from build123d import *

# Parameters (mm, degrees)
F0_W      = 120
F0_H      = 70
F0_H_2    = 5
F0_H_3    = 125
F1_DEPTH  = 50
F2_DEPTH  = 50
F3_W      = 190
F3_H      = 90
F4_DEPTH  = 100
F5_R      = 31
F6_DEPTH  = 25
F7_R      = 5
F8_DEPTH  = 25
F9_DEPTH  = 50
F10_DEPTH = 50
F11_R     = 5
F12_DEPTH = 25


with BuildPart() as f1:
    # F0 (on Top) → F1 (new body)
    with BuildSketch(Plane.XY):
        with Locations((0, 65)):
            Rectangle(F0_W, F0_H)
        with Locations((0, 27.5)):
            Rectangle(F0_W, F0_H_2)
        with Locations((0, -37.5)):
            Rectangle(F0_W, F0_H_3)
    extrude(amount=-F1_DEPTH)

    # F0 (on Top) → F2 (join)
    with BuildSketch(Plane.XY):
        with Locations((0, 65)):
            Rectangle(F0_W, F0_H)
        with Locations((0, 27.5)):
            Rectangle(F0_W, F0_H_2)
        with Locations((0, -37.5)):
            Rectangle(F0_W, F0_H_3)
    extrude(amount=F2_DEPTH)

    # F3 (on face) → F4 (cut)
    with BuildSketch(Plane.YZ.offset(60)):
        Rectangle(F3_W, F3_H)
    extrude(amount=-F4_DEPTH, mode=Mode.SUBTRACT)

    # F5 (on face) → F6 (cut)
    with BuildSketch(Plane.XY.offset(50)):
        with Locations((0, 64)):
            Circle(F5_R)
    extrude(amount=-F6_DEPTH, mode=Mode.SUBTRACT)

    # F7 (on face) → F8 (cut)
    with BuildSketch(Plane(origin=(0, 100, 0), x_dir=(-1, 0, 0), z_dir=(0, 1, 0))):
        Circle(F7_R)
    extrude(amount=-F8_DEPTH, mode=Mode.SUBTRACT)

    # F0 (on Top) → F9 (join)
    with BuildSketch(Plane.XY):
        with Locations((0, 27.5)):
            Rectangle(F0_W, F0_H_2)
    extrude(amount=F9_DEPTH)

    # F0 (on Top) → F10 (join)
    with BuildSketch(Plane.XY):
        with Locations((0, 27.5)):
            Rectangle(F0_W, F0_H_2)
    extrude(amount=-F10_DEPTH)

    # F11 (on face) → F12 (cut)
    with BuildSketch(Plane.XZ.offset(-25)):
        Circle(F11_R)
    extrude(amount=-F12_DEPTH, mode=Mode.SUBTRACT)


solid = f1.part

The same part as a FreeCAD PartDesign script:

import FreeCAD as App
import Part
import Sketcher


def add_polygon(sketch, points):
    """Adds a closed chain of lines whose ends are joined by coincident constraints."""
    first, n = sketch.GeometryCount, len(points)
    for a, b in zip(points, points[1:] + points[:1]):
        sketch.addGeometry(Part.LineSegment(App.Vector(*a, 0), App.Vector(*b, 0)), False)
    for i in range(n):
        sketch.addConstraint(Sketcher.Constraint("Coincident", first + i, 2, first + (i + 1) % n, 1))

doc = App.newDocument("Part")
body = doc.addObject("PartDesign::Body", "Body")

sketch1 = doc.addObject("Sketcher::SketchObject", "Sketch")
body.addObject(sketch1)
sketch1.AttachmentSupport = (doc.XY_Plane, [""])
sketch1.MapMode = "FlatFace"
add_polygon(sketch1, [(-60, 100), (-60, -100), (60, -100), (60, 100)])
sketch1.addConstraint([
    Sketcher.Constraint("Vertical", 0),
    Sketcher.Constraint("Horizontal", 1),
    Sketcher.Constraint("Vertical", 2),
    Sketcher.Constraint("Horizontal", 3),
    Sketcher.Constraint("Symmetric", 0, 2, 2, 2, -1, 1),
    Sketcher.Constraint("DistanceX", 1, 1, 1, 2, 120.0),
    Sketcher.Constraint("DistanceY", 0, 2, 0, 1, 200.0),
])
pad1 = doc.addObject("PartDesign::Pad", "Pad")
body.addObject(pad1)
pad1.Profile = sketch1
pad1.Length = 50
pad1.Reversed = True

sketch2 = doc.addObject("Sketcher::SketchObject", "Sketch001")
body.addObject(sketch2)
sketch2.AttachmentSupport = (doc.XY_Plane, [""])
sketch2.MapMode = "FlatFace"
add_polygon(sketch2, [(-60, 100), (-60, -100), (60, -100), (60, 100)])
sketch2.addConstraint([
    Sketcher.Constraint("Vertical", 0),
    Sketcher.Constraint("Horizontal", 1),
    Sketcher.Constraint("Vertical", 2),
    Sketcher.Constraint("Horizontal", 3),
    Sketcher.Constraint("Symmetric", 0, 2, 2, 2, -1, 1),
    Sketcher.Constraint("DistanceX", 1, 1, 1, 2, 120.0),
    Sketcher.Constraint("DistanceY", 0, 2, 0, 1, 200.0),
])
pad2 = doc.addObject("PartDesign::Pad", "Pad001")
body.addObject(pad2)
pad2.Profile = sketch2
pad2.Length = 50

sketch3 = doc.addObject("Sketcher::SketchObject", "Sketch002")
body.addObject(sketch3)
sketch3.AttachmentSupport = (doc.YZ_Plane, [""])
sketch3.MapMode = "FlatFace"
sketch3.AttachmentOffset = App.Placement(App.Vector(0, 0, 60), App.Rotation())
add_polygon(sketch3, [(-95, 45), (-95, -45), (95, -45), (95, 45)])
sketch3.addConstraint([
    Sketcher.Constraint("Vertical", 0),
    Sketcher.Constraint("Horizontal", 1),
    Sketcher.Constraint("Vertical", 2),
    Sketcher.Constraint("Horizontal", 3),
    Sketcher.Constraint("Symmetric", 0, 2, 2, 2, -1, 1),
    Sketcher.Constraint("DistanceX", 1, 1, 1, 2, 190.0),
    Sketcher.Constraint("DistanceY", 0, 2, 0, 1, 90.0),
])
pocket1 = doc.addObject("PartDesign::Pocket", "Pocket")
body.addObject(pocket1)
pocket1.Profile = sketch3
pocket1.Length = 100

sketch4 = doc.addObject("Sketcher::SketchObject", "Sketch003")
body.addObject(sketch4)
sketch4.AttachmentSupport = (doc.XY_Plane, [""])
sketch4.MapMode = "FlatFace"
sketch4.AttachmentOffset = App.Placement(App.Vector(0, 0, 50), App.Rotation())
sketch4.addGeometry(Part.Circle(App.Vector(0, 64, 0), App.Vector(0, 0, 1), 31), False)
sketch4.addConstraint([
    Sketcher.Constraint("PointOnObject", 0, 3, -2),
    Sketcher.Constraint("Diameter", 0, 62.0),
    Sketcher.Constraint("DistanceY", -1, 1, 0, 3, 64.0),
])
pocket2 = doc.addObject("PartDesign::Pocket", "Pocket001")
body.addObject(pocket2)
pocket2.Profile = sketch4
pocket2.Length = 25

sketch5 = doc.addObject("Sketcher::SketchObject", "Sketch004")
body.addObject(sketch5)
sketch5.AttachmentSupport = (doc.XZ_Plane, [""])
sketch5.MapMode = "FlatFace"
sketch5.AttachmentOffset = App.Placement(App.Vector(0, 0, -100), App.Rotation())
sketch5.addGeometry(Part.Circle(App.Vector(0, 0, 0), App.Vector(0, 0, 1), 5), False)
sketch5.addConstraint([
    Sketcher.Constraint("Coincident", 0, 3, -1, 1),
    Sketcher.Constraint("Diameter", 0, 10.0),
])
pocket3 = doc.addObject("PartDesign::Pocket", "Pocket002")
body.addObject(pocket3)
pocket3.Profile = sketch5
pocket3.Length = 25
pocket3.Reversed = True

sketch6 = doc.addObject("Sketcher::SketchObject", "Sketch005")
body.addObject(sketch6)
sketch6.AttachmentSupport = (doc.XY_Plane, [""])
sketch6.MapMode = "FlatFace"
add_polygon(sketch6, [(-60, 30), (-60, 25), (60, 25), (60, 30)])
sketch6.addConstraint([
    Sketcher.Constraint("Vertical", 0),
    Sketcher.Constraint("Horizontal", 1),
    Sketcher.Constraint("Vertical", 2),
    Sketcher.Constraint("Horizontal", 3),
    Sketcher.Constraint("DistanceX", 1, 1, 1, 2, 120.0),
    Sketcher.Constraint("DistanceY", 0, 2, 0, 1, 5.0),
    Sketcher.Constraint("DistanceX", 0, 2, -1, 1, 60.0),
    Sketcher.Constraint("DistanceY", -1, 1, 0, 2, 25.0),
])
pad3 = doc.addObject("PartDesign::Pad", "Pad002")
body.addObject(pad3)
pad3.Profile = sketch6
pad3.Length = 50

sketch7 = doc.addObject("Sketcher::SketchObject", "Sketch006")
body.addObject(sketch7)
sketch7.AttachmentSupport = (doc.XY_Plane, [""])
sketch7.MapMode = "FlatFace"
add_polygon(sketch7, [(-60, 30), (-60, 25), (60, 25), (60, 30)])
sketch7.addConstraint([
    Sketcher.Constraint("Vertical", 0),
    Sketcher.Constraint("Horizontal", 1),
    Sketcher.Constraint("Vertical", 2),
    Sketcher.Constraint("Horizontal", 3),
    Sketcher.Constraint("DistanceX", 1, 1, 1, 2, 120.0),
    Sketcher.Constraint("DistanceY", 0, 2, 0, 1, 5.0),
    Sketcher.Constraint("DistanceX", 0, 2, -1, 1, 60.0),
    Sketcher.Constraint("DistanceY", -1, 1, 0, 2, 25.0),
])
pad4 = doc.addObject("PartDesign::Pad", "Pad003")
body.addObject(pad4)
pad4.Profile = sketch7
pad4.Length = 50
pad4.Reversed = True

sketch8 = doc.addObject("Sketcher::SketchObject", "Sketch007")
body.addObject(sketch8)
sketch8.AttachmentSupport = (doc.XZ_Plane, [""])
sketch8.MapMode = "FlatFace"
sketch8.AttachmentOffset = App.Placement(App.Vector(0, 0, -25), App.Rotation())
sketch8.addGeometry(Part.Circle(App.Vector(0, 0, 0), App.Vector(0, 0, 1), 5), False)
sketch8.addConstraint([
    Sketcher.Constraint("Coincident", 0, 3, -1, 1),
    Sketcher.Constraint("Diameter", 0, 10.0),
])
pocket4 = doc.addObject("PartDesign::Pocket", "Pocket003")
body.addObject(pocket4)
pocket4.Profile = sketch8
pocket4.Length = 25

doc.recompute()
